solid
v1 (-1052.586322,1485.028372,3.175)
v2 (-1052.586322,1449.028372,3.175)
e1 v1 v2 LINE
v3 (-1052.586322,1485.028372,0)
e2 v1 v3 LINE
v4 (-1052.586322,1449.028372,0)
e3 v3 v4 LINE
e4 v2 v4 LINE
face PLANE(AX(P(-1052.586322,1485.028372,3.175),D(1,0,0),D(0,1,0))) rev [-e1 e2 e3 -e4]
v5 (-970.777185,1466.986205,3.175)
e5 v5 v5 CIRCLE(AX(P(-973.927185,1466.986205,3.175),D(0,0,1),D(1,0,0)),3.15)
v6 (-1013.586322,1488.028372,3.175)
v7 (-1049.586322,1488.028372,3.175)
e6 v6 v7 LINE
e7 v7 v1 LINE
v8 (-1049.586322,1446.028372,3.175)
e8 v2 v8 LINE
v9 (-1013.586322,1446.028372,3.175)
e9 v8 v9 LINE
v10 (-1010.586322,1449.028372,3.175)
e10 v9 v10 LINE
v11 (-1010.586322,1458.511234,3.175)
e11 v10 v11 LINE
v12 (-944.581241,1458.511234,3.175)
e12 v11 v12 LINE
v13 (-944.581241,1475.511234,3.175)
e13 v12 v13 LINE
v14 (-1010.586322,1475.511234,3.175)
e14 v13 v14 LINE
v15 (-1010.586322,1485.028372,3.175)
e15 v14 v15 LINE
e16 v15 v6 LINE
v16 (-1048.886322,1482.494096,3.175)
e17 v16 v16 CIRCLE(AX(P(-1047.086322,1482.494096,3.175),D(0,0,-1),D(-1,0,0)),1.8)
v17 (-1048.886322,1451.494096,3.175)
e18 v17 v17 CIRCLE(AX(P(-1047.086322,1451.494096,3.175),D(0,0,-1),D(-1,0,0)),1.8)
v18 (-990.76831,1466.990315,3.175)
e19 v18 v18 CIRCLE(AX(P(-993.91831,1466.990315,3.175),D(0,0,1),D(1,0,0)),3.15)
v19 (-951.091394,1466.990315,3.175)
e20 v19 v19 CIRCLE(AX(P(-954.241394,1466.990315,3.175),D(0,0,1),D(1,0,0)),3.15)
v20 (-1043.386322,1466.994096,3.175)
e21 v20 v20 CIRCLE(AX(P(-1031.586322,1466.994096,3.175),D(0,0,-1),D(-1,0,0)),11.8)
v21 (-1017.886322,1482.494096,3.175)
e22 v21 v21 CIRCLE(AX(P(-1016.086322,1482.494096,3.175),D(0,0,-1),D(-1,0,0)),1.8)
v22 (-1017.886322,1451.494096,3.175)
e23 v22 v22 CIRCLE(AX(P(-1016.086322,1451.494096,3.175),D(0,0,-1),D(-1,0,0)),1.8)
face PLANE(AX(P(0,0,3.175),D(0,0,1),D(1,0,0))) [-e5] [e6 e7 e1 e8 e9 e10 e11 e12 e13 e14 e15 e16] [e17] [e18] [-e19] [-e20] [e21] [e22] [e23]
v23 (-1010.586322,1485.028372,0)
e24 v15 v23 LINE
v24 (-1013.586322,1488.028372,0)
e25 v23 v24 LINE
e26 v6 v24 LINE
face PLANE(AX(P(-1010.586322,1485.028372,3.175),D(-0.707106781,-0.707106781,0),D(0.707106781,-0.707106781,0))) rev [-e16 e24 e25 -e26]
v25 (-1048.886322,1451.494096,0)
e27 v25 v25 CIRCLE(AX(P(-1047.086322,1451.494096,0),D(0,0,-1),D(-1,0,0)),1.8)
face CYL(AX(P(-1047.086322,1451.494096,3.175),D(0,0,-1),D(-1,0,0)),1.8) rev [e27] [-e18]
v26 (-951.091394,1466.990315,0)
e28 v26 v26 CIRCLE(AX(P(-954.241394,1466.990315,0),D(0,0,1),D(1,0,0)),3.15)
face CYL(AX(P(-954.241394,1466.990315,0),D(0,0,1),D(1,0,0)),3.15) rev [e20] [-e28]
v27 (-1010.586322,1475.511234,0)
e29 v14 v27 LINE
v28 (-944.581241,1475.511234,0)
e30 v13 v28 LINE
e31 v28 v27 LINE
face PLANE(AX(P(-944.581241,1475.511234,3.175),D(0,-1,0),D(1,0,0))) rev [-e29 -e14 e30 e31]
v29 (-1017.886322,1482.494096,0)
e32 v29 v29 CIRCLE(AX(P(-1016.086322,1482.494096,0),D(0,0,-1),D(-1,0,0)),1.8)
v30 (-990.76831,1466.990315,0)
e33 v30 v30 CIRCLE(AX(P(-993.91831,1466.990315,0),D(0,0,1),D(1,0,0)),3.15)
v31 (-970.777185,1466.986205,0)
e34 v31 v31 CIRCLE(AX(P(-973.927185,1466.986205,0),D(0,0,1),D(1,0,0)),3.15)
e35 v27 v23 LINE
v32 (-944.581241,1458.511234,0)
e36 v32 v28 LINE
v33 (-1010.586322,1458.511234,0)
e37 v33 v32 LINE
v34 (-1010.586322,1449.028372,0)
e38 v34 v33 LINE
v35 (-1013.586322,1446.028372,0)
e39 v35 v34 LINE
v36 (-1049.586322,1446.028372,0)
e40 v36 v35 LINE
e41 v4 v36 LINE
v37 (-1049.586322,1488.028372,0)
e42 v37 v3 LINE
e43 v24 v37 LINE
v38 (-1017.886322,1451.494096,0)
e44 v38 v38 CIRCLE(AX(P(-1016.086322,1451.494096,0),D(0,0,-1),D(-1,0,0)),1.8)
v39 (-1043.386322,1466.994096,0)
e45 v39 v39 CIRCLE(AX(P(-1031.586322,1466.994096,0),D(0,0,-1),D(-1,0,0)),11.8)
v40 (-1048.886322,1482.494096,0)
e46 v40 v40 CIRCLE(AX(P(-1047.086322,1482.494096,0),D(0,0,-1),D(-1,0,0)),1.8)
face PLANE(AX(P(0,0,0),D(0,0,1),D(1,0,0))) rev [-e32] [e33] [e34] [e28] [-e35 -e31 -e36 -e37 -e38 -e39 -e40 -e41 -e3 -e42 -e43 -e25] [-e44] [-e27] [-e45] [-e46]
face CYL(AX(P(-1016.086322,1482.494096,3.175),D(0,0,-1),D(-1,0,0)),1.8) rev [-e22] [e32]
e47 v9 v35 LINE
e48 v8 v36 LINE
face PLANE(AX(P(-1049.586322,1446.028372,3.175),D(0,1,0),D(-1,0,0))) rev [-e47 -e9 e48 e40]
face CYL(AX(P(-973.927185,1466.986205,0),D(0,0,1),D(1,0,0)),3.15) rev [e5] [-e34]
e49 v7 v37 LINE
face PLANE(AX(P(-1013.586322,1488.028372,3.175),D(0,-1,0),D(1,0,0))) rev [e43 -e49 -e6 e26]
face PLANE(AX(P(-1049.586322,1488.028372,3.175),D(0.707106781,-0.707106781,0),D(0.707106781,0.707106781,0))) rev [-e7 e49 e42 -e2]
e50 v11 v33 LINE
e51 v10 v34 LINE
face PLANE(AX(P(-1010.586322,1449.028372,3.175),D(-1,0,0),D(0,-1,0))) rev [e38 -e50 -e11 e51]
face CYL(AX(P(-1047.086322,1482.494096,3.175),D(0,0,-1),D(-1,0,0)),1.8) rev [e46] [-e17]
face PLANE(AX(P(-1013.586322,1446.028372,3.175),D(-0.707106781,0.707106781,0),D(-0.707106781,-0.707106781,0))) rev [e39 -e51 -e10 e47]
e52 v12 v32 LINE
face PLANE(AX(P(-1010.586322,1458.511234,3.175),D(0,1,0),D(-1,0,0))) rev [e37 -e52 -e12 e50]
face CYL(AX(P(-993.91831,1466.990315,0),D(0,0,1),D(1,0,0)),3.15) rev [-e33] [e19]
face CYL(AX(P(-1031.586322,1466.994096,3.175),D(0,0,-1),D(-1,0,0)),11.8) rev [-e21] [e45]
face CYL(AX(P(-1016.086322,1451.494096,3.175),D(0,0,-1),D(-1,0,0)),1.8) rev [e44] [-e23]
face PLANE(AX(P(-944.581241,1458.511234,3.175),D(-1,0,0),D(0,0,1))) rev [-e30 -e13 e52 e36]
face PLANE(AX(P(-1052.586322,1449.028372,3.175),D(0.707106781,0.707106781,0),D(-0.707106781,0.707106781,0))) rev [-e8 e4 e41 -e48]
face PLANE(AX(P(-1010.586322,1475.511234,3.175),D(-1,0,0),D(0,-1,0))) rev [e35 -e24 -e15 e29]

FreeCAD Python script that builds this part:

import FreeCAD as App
import Part
import Sketcher
from FreeCAD import Vector


def add_polygon(sketch, points):
    """Adds a closed chain of lines whose ends are joined by coincident constraints."""
    first, n = sketch.GeometryCount, len(points)
    for a, b in zip(points, points[1:] + points[:1]):
        sketch.addGeometry(Part.LineSegment(App.Vector(*a, 0), App.Vector(*b, 0)), False)
    for i in range(n):
        sketch.addConstraint(Sketcher.Constraint("Coincident", first + i, 2, first + (i + 1) % n, 1))

doc = App.newDocument("Part")
body = doc.addObject("PartDesign::Body", "Body")

# Sketch on XY plane
sketch1 = body.newObject("Sketcher::SketchObject", "Sketch")
sketch1.AttachmentSupport = (doc.getObject("XY_Plane"), [""])
sketch1.MapMode = "FlatFace"
add_polygon(sketch1, [(-1010.586322, 1449.028372), (-1010.586322, 1458.511234), (-944.581241, 1458.511234), (-944.581241, 1475.511234), (-1010.586322, 1475.511234), (-1010.586322, 1485.028372), (-1013.586322, 1488.028372), (-1049.586322, 1488.028372), (-1052.586322, 1485.028372), (-1052.586322, 1449.028372), (-1049.586322, 1446.028372), (-1013.586322, 1446.028372)])  # lines 0-11
sketch1.addConstraint(Sketcher.Constraint("Vertical", 0))
sketch1.addConstraint(Sketcher.Constraint("Horizontal", 1))
sketch1.addConstraint(Sketcher.Constraint("Vertical", 2))
sketch1.addConstraint(Sketcher.Constraint("Horizontal", 3))
sketch1.addConstraint(Sketcher.Constraint("Vertical", 4))
sketch1.addConstraint(Sketcher.Constraint("Horizontal", 6))
sketch1.addConstraint(Sketcher.Constraint("Vertical", 8))
sketch1.addConstraint(Sketcher.Constraint("Horizontal", 10))
sketch1.addConstraint(Sketcher.Constraint("Perpendicular", 5, 7))
sketch1.addConstraint(Sketcher.Constraint("Perpendicular", 7, 9))
sketch1.addConstraint(Sketcher.Constraint("Perpendicular", 9, 11))
sketch1.addConstraint(Sketcher.Constraint("Horizontal", 4, 2, 7, 2))
sketch1.addConstraint(Sketcher.Constraint("Horizontal", 8, 2, 11, 2))
sketch1.addConstraint(Sketcher.Constraint("Vertical", 0, 2, 3, 2))
sketch1.addConstraint(Sketcher.Constraint("Vertical", 6, 2, 9, 2))
sketch1.addConstraint(Sketcher.Constraint("Vertical", 5, 2, 10, 2))
sketch1.addConstraint(Sketcher.Constraint("Equal", 10, 8))
sketch1.addConstraint(Sketcher.Constraint("DistanceX", 6, 2, 6, 1, 36.0))
sketch1.addConstraint(Sketcher.Constraint("DistanceY", 2, 1, 2, 2, 17.0))
sketch1.addConstraint(Sketcher.Constraint("DistanceX", 5, 2, 4, 2, 3.0))
sketch1.addConstraint(Sketcher.Constraint("DistanceX", 1, 1, 1, 2, 66.005081))
sketch1.addConstraint(Sketcher.Constraint("DistanceY", 0, 1, 0, 2, 9.482862))
sketch1.addConstraint(Sketcher.Constraint("DistanceX", 0, 2, -1, 1, 1010.586322))
sketch1.addConstraint(Sketcher.Constraint("DistanceY", -1, 1, 0, 2, 1458.511234))
pad1 = body.newObject("PartDesign::Pad", "Pad")
pad1.Profile = sketch1
pad1.Length = 3.175

# Sketch on XY plane
sketch2 = body.newObject("Sketcher::SketchObject", "Sketch001")
sketch2.AttachmentSupport = (doc.getObject("XY_Plane"), [""])
sketch2.MapMode = "FlatFace"
sketch2.addGeometry(Part.Circle(Vector(-1031.586322, 1466.994096, 0), Vector(0, 0, 1), 11.8), False)
sketch2.addGeometry(Part.Circle(Vector(-1047.086322, 1482.494096, 0), Vector(0, 0, 1), 1.8), False)
sketch2.addGeometry(Part.Circle(Vector(-1047.086322, 1451.494096, 0), Vector(0, 0, 1), 1.8), False)
sketch2.addGeometry(Part.Circle(Vector(-1016.086322, 1451.494096, 0), Vector(0, 0, 1), 1.8), False)
sketch2.addGeometry(Part.Circle(Vector(-1016.086322, 1482.494096, 0), Vector(0, 0, 1), 1.8), False)
sketch2.addConstraint(Sketcher.Constraint("Equal", 1, 2))
sketch2.addConstraint(Sketcher.Constraint("Equal", 2, 3))
sketch2.addConstraint(Sketcher.Constraint("Equal", 3, 4))
sketch2.addConstraint(Sketcher.Constraint("Horizontal", 2, 3, 3, 3))
sketch2.addConstraint(Sketcher.Constraint("Horizontal", 1, 3, 4, 3))
sketch2.addConstraint(Sketcher.Constraint("Vertical", 1, 3, 2, 3))
sketch2.addConstraint(Sketcher.Constraint("Vertical", 3, 3, 4, 3))
sketch2.addConstraint(Sketcher.Constraint("Diameter", 0, 23.6))
sketch2.addConstraint(Sketcher.Constraint("Diameter", 1, 3.6))
sketch2.addConstraint(Sketcher.Constraint("DistanceY", 2, 3, 1, 3, 31.0))
sketch2.addConstraint(Sketcher.Constraint("DistanceX", 2, 3, 3, 3, 31.0))
sketch2.addConstraint(Sketcher.Constraint("DistanceX", 1, 3, 0, 3, 15.5))
sketch2.addConstraint(Sketcher.Constraint("DistanceY", 0, 3, 1, 3, 15.5))
sketch2.addConstraint(Sketcher.Constraint("DistanceX", 0, 3, -1, 1, 1031.586322))
sketch2.addConstraint(Sketcher.Constraint("DistanceY", -1, 1, 0, 3, 1466.994096))
pocket1 = body.newObject("PartDesign::Pocket", "Pocket")
pocket1.Profile = sketch2
pocket1.Type = "ThroughAll"
pocket1.Reversed = True

# Sketch on XY plane
sketch3 = body.newObject("Sketcher::SketchObject", "Sketch002")
sketch3.AttachmentSupport = (doc.getObject("XY_Plane"), [""])
sketch3.MapMode = "FlatFace"
sketch3.AttachmentOffset = App.Placement(Vector(0, 0, 3.175), App.Rotation())
sketch3.addGeometry(Part.Circle(Vector(-973.927185, 1466.986205, 0), Vector(0, 0, 1), 3.15), False)
sketch3.addGeometry(Part.Circle(Vector(-993.91831, 1466.990315, 0), Vector(0, 0, 1), 3.15), False)
sketch3.addGeometry(Part.Circle(Vector(-954.241394, 1466.990315, 0), Vector(0, 0, 1), 3.15), False)
sketch3.addConstraint(Sketcher.Constraint("Equal", 0, 1))
sketch3.addConstraint(Sketcher.Constraint("Equal", 1, 2))
sketch3.addConstraint(Sketcher.Constraint("Horizontal", 1, 3, 2, 3))
sketch3.addConstraint(Sketcher.Constraint("Diameter", 0, 6.3))
sketch3.addConstraint(Sketcher.Constraint("DistanceX", 1, 3, -1, 1, 993.91831))
sketch3.addConstraint(Sketcher.Constraint("DistanceY", 0, 3, 1, 3, 0.00411))
sketch3.addConstraint(Sketcher.Constraint("DistanceX", 0, 3, 2, 3, 19.685791))
sketch3.addConstraint(Sketcher.Constraint("DistanceX", 0, 3, -1, 1, 973.927185))
sketch3.addConstraint(Sketcher.Constraint("DistanceY", -1, 1, 0, 3, 1466.986205))
pocket2 = body.newObject("PartDesign::Pocket", "Pocket001")
pocket2.Profile = sketch3
pocket2.Type = "ThroughAll"

doc.recompute()
